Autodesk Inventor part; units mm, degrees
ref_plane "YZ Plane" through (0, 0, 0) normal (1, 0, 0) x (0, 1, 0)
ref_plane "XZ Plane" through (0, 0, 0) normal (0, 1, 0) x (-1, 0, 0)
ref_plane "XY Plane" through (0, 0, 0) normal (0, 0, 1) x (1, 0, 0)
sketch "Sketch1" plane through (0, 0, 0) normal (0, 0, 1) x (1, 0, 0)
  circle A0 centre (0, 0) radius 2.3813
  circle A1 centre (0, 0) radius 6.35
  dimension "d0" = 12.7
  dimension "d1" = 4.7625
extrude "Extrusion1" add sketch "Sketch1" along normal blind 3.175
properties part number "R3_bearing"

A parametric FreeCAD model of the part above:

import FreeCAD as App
import Part
import Sketcher
Q = App.Units.Quantity

doc = App.newDocument("Part")
params = doc.addObject("Spreadsheet::Sheet", "Params")
for row, (alias, value) in enumerate([
    ("sketch1_diameter", "0.5 in"),
    ("sketch1_diameter2", "0.1875 in"),
    ("pad1_length", "0.125 in"),
], start=1):
    params.set(f"A{row}", alias)
    params.set(f"B{row}", "=" + value)
    params.setAlias(f"B{row}", alias)

body = doc.addObject("PartDesign::Body", "Body")

# Sketch on XY plane
sketch1 = doc.addObject("Sketcher::SketchObject", "Sketch")
body.addObject(sketch1)
sketch1.AttachmentSupport = (doc.XY_Plane, [""])
sketch1.MapMode = "FlatFace"
sketch1.addGeometry([
    Part.Circle(App.Vector(0, 0, 0), App.Vector(0, 0, 1), 6.3),
    Part.Circle(App.Vector(0, 0, 0), App.Vector(0, 0, 1), 2.4),
], False)
sketch1.addConstraint([
    Sketcher.Constraint("Coincident", 0, 3, -1, 1),
    Sketcher.Constraint("Coincident", 1, 3, -1, 1),
    Sketcher.Constraint("Diameter", 0, Q("0.5 in")),
    Sketcher.Constraint("Diameter", 1, Q("0.1875 in")),
])
sketch1.setExpression("Constraints[2]", "Params.sketch1_diameter")
sketch1.setExpression("Constraints[3]", "Params.sketch1_diameter2")
pad1 = doc.addObject("PartDesign::Pad", "Pad")
body.addObject(pad1)
pad1.Profile = sketch1
pad1.setExpression("Length", "Params.pad1_length")

doc.recompute()
